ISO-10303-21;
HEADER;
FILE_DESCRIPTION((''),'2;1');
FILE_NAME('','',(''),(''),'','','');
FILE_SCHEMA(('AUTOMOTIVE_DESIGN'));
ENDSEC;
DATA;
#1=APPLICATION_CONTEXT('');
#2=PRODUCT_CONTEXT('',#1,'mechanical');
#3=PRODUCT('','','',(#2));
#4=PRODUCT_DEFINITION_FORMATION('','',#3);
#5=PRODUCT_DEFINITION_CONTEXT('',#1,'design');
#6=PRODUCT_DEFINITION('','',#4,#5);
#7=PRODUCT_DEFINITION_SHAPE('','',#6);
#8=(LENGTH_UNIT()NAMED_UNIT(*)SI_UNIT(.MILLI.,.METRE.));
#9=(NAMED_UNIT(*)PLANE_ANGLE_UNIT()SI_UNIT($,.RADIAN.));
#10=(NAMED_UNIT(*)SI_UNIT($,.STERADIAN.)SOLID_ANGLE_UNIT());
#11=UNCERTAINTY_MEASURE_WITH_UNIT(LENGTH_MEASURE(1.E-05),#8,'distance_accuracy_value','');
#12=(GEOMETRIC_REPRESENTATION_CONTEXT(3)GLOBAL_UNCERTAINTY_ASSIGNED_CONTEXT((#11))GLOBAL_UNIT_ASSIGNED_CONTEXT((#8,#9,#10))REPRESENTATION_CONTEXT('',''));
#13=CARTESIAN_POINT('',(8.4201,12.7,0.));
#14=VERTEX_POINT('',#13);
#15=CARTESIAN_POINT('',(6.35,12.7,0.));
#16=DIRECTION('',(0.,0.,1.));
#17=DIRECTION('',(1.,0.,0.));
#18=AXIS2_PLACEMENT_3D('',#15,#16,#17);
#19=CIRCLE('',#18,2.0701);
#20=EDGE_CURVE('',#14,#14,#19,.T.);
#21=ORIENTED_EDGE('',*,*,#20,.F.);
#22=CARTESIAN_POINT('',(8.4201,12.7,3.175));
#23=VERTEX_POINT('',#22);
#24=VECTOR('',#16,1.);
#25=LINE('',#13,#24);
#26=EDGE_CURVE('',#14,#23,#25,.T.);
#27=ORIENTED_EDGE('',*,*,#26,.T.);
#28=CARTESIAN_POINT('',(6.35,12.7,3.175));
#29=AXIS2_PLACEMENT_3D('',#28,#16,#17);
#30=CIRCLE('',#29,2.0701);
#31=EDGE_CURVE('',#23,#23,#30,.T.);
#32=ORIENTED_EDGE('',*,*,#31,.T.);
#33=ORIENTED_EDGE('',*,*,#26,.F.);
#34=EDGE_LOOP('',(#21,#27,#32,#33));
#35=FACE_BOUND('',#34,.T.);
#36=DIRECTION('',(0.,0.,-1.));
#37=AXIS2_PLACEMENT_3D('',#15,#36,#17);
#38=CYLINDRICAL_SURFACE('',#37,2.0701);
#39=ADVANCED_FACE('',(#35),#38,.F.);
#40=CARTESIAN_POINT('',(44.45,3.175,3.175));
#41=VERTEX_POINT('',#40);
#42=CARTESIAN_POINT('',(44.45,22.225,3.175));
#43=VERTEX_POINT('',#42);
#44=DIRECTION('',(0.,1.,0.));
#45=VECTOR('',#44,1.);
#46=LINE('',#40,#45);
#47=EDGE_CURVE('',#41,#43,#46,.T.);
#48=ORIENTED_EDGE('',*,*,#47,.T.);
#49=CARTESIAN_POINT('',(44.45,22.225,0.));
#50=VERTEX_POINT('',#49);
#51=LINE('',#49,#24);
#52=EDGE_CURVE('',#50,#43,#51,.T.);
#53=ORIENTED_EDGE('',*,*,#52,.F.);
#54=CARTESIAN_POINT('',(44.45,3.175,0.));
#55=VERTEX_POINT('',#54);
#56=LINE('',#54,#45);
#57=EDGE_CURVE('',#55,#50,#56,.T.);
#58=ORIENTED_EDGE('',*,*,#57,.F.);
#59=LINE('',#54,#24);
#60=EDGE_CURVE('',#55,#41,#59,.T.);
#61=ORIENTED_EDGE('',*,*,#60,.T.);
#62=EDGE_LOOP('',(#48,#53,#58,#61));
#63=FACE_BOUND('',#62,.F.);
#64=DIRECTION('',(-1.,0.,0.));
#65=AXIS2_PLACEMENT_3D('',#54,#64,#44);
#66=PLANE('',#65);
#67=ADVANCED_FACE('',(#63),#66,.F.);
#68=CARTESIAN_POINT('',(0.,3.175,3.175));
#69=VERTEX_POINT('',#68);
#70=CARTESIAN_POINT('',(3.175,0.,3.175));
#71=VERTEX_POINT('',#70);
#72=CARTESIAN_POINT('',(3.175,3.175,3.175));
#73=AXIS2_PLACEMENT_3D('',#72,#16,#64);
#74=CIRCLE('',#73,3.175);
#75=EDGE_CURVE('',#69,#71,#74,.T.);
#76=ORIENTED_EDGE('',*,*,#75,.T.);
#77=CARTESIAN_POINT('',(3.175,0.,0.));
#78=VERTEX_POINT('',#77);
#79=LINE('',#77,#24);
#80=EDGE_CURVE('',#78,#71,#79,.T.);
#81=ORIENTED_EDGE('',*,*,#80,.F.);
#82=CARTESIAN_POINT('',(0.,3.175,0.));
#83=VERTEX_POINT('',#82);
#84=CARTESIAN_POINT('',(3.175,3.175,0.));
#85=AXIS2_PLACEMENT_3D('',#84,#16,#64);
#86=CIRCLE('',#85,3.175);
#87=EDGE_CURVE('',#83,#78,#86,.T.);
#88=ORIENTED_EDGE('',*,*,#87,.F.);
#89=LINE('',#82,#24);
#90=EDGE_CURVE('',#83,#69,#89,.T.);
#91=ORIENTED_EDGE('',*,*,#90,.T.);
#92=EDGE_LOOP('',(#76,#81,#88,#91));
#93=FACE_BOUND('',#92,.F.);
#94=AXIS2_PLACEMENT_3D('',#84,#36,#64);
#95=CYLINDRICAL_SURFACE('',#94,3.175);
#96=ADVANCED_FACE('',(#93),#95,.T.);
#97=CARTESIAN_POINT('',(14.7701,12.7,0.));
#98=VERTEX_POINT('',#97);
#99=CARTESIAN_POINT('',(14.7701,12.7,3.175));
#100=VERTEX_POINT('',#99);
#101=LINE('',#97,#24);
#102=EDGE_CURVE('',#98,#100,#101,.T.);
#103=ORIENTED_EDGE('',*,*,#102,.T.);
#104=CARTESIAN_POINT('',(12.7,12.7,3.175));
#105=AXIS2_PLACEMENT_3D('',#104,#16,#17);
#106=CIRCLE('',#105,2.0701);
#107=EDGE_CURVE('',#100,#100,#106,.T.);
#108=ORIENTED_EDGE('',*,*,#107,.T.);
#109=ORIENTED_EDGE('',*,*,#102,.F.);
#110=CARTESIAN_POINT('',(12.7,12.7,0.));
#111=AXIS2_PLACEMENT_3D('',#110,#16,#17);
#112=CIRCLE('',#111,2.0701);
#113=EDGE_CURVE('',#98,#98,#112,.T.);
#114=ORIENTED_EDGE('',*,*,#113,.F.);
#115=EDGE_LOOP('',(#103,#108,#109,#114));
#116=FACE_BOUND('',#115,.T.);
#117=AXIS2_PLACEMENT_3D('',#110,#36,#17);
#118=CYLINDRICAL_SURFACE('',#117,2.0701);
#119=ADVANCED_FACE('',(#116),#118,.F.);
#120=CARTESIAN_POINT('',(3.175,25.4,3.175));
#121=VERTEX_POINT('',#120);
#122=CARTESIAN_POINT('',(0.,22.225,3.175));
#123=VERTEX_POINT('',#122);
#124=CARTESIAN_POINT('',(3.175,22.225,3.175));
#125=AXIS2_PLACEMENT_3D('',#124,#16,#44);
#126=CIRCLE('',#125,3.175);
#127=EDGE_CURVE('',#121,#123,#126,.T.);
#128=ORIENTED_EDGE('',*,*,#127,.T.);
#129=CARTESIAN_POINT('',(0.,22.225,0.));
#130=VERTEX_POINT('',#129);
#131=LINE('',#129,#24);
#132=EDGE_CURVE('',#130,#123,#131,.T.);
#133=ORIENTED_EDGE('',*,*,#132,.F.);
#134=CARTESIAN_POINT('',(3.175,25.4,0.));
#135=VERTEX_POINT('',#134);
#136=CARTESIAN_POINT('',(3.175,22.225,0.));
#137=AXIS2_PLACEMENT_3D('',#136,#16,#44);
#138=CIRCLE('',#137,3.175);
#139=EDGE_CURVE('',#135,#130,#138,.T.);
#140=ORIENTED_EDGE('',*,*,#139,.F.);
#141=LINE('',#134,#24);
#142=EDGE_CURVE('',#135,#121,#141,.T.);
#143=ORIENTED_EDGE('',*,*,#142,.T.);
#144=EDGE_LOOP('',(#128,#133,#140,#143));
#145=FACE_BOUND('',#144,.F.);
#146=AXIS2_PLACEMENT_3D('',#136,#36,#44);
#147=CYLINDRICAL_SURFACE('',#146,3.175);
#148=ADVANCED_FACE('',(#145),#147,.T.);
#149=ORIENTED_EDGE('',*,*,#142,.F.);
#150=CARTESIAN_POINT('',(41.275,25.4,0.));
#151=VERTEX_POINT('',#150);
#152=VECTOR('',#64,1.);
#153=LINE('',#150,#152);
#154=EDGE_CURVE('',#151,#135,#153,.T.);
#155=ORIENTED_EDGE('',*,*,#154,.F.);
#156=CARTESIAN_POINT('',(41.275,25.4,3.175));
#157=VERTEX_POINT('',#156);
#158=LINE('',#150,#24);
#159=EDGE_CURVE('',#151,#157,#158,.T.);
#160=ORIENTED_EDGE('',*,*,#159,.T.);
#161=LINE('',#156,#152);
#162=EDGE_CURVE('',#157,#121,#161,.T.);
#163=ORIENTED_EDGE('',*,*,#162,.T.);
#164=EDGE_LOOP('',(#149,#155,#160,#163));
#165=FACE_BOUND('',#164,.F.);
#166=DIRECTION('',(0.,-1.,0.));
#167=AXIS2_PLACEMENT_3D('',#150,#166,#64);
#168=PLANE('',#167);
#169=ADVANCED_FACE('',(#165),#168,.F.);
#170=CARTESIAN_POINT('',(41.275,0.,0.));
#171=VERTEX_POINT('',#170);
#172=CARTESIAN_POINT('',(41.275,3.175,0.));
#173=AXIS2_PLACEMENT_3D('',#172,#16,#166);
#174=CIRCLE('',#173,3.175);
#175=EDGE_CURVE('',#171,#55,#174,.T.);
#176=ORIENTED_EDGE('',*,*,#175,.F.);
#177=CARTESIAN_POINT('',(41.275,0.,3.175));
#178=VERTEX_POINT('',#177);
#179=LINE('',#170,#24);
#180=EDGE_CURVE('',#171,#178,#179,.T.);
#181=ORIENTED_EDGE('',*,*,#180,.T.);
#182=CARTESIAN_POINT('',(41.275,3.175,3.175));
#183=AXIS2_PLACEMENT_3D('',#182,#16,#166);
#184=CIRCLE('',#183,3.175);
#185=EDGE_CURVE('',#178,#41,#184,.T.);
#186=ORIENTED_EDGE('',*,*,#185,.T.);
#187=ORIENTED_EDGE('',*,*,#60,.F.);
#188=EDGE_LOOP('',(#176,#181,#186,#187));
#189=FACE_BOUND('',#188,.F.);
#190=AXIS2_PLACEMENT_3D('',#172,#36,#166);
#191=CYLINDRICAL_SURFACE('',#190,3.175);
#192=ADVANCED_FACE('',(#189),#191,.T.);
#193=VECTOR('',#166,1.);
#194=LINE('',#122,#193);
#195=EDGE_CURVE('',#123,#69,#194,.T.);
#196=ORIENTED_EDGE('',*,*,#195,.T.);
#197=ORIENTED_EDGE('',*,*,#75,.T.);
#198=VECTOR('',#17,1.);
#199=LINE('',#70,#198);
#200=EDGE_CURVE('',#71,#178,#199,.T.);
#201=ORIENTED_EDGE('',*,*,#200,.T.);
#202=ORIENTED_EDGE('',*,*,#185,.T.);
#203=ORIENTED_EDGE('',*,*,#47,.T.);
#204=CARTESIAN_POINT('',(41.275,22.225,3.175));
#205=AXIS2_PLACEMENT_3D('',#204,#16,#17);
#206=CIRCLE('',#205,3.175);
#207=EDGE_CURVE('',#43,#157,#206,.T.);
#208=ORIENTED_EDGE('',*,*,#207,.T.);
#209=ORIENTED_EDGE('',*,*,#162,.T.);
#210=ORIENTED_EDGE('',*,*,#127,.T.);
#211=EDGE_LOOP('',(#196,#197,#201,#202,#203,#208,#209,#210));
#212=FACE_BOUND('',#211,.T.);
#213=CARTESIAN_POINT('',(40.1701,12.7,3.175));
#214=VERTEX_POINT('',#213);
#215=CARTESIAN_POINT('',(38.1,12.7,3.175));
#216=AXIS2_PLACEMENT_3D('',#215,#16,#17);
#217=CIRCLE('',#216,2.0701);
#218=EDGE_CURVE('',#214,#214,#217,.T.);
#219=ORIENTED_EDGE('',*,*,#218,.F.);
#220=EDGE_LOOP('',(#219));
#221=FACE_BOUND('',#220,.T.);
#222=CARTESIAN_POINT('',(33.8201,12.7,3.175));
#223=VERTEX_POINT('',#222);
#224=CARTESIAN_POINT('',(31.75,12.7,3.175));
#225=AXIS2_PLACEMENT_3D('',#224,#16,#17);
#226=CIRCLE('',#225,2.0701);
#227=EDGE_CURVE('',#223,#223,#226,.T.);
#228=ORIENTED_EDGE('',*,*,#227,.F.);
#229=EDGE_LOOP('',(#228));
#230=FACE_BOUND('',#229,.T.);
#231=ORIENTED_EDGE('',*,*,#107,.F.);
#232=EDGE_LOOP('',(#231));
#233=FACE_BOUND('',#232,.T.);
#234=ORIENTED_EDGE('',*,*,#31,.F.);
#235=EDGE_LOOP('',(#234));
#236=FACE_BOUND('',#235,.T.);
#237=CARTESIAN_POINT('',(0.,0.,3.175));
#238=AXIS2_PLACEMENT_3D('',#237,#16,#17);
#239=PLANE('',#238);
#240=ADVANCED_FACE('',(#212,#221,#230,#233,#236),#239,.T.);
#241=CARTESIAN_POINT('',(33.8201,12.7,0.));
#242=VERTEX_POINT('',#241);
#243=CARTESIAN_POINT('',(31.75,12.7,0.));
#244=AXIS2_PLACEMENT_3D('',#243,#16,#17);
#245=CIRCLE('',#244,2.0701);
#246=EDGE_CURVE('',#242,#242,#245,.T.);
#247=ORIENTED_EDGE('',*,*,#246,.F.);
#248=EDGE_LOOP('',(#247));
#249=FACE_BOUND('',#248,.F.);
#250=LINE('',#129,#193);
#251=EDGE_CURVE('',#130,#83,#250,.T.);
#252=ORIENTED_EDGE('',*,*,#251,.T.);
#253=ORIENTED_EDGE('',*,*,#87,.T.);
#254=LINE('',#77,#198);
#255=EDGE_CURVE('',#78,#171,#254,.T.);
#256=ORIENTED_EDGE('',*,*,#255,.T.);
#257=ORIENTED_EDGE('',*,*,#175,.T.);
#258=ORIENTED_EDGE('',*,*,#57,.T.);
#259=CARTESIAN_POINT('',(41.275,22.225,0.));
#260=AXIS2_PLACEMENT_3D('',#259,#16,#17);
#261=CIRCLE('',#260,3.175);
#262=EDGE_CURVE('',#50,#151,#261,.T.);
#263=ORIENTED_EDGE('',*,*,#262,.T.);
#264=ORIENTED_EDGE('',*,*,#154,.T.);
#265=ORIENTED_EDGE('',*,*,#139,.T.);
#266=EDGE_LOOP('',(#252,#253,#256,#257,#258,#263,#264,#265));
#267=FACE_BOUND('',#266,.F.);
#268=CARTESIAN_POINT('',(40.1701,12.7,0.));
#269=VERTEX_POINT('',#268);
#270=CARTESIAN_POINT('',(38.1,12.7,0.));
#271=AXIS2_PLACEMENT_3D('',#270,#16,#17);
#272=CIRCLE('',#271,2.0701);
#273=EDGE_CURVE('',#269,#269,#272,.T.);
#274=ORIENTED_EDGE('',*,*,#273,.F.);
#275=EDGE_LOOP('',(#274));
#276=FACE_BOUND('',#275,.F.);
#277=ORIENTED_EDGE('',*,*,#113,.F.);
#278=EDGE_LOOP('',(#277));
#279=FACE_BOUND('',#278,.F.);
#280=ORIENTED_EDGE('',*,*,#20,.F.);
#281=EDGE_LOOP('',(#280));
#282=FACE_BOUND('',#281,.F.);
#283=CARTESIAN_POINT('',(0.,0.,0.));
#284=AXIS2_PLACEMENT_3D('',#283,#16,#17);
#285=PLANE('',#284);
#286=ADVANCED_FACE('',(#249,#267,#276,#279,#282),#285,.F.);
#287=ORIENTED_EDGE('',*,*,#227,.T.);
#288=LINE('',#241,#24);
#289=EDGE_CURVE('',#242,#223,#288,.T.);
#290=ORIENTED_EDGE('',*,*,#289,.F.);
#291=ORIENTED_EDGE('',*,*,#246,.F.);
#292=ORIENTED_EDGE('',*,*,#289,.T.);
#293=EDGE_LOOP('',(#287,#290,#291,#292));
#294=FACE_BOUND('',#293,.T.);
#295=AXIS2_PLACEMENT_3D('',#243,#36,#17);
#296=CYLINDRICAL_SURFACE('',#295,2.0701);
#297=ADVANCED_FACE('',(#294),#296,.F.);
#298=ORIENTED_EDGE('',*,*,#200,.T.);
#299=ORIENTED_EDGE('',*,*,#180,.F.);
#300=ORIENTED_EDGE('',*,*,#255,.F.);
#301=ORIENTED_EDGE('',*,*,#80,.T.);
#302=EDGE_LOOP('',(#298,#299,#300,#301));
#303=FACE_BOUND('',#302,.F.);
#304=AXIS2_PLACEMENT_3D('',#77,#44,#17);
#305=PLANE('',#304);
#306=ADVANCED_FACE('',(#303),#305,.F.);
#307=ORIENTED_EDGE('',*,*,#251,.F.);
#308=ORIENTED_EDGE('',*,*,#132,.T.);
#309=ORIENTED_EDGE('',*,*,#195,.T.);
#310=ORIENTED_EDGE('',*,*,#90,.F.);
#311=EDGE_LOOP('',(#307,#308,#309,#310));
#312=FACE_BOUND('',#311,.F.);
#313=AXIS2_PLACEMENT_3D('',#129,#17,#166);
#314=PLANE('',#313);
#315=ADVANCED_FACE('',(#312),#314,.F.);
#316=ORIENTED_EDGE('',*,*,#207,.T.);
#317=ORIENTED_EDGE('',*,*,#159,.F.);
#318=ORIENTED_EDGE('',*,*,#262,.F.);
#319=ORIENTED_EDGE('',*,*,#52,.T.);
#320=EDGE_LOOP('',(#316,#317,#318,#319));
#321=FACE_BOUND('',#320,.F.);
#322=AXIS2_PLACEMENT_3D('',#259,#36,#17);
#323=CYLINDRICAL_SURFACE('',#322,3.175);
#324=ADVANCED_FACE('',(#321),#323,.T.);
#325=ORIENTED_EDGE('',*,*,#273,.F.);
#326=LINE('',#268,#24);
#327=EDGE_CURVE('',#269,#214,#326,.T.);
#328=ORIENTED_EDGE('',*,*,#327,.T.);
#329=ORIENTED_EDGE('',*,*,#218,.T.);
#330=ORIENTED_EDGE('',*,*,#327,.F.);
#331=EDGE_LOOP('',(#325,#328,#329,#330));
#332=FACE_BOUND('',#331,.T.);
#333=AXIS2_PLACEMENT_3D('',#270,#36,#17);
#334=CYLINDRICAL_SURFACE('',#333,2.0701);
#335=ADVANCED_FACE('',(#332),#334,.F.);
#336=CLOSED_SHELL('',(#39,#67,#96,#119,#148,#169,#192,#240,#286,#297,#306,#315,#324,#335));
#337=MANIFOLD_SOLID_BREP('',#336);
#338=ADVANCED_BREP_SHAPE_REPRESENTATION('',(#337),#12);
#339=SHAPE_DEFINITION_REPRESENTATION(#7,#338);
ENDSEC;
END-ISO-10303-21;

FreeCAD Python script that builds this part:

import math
import FreeCAD as App
import Part
import Sketcher
from FreeCAD import Vector
Q = App.Units.Quantity

doc = App.newDocument("Part")
body = doc.addObject("PartDesign::Body", "Body")

# Sketch on XY plane
sketch1 = doc.addObject("Sketcher::SketchObject", "Sketch")
body.addObject(sketch1)
sketch1.AttachmentSupport = (doc.XY_Plane, [""])
sketch1.MapMode = "FlatFace"
sketch1.addGeometry(Part.ArcOfCircle(Part.Circle(Vector(3.2, 3.2, 0), Vector(0, 0, 1), 3.2), math.radians(180), math.radians(270)), False)
sketch1.addGeometry(Part.LineSegment(Vector(3.2, 0, 0), Vector(41.3, 0, 0)), False)
sketch1.addGeometry(Part.ArcOfCircle(Part.Circle(Vector(41.3, 3.2, 0), Vector(0, 0, 1), 3.2), math.radians(-90), math.radians(0)), False)
sketch1.addGeometry(Part.LineSegment(Vector(44.5, 3.2, 0), Vector(44.5, 22.2, 0)), False)
sketch1.addGeometry(Part.ArcOfCircle(Part.Circle(Vector(41.3, 22.2, 0), Vector(0, 0, 1), 3.2), math.radians(0), math.radians(90)), False)
sketch1.addGeometry(Part.LineSegment(Vector(41.3, 25.4, 0), Vector(3.2, 25.4, 0)), False)
sketch1.addGeometry(Part.ArcOfCircle(Part.Circle(Vector(3.2, 22.2, 0), Vector(0, 0, 1), 3.2), math.radians(90), math.radians(180)), False)
sketch1.addGeometry(Part.LineSegment(Vector(0, 22.2, 0), Vector(0, 3.2, 0)), False)
sketch1.addGeometry(Part.Circle(Vector(6.3, 12.7, 0), Vector(0, 0, 1), 2.1), False)
sketch1.addGeometry(Part.Circle(Vector(12.7, 12.7, 0), Vector(0, 0, 1), 2.1), False)
sketch1.addGeometry(Part.Circle(Vector(31.8, 12.7, 0), Vector(0, 0, 1), 2.1), False)
sketch1.addGeometry(Part.Circle(Vector(38.1, 12.7, 0), Vector(0, 0, 1), 2.1), False)
sketch1.addConstraint(Sketcher.Constraint("Tangent", 0, 2, 1, 1))
sketch1.addConstraint(Sketcher.Constraint("Tangent", 1, 2, 2, 1))
sketch1.addConstraint(Sketcher.Constraint("Tangent", 2, 2, 3, 1))
sketch1.addConstraint(Sketcher.Constraint("Tangent", 3, 2, 4, 1))
sketch1.addConstraint(Sketcher.Constraint("Tangent", 4, 2, 5, 1))
sketch1.addConstraint(Sketcher.Constraint("Tangent", 5, 2, 6, 1))
sketch1.addConstraint(Sketcher.Constraint("Tangent", 6, 2, 7, 1))
sketch1.addConstraint(Sketcher.Constraint("Tangent", 7, 2, 0, 1))
sketch1.addConstraint(Sketcher.Constraint("Horizontal", 1))
sketch1.addConstraint(Sketcher.Constraint("Vertical", 3))
sketch1.addConstraint(Sketcher.Constraint("Horizontal", 5))
sketch1.addConstraint(Sketcher.Constraint("Vertical", 7))
sketch1.addConstraint(Sketcher.Constraint("Equal", 0, 2))
sketch1.addConstraint(Sketcher.Constraint("Equal", 2, 4))
sketch1.addConstraint(Sketcher.Constraint("Equal", 4, 6))
sketch1.addConstraint(Sketcher.Constraint("Equal", 8, 9))
sketch1.addConstraint(Sketcher.Constraint("Equal", 9, 10))
sketch1.addConstraint(Sketcher.Constraint("Equal", 10, 11))
sketch1.addConstraint(Sketcher.Constraint("PointOnObject", 0, 2, -1))
sketch1.addConstraint(Sketcher.Constraint("PointOnObject", 6, 2, -2))
sketch1.addConstraint(Sketcher.Constraint("Horizontal", 8, 3, 9, 3))
sketch1.addConstraint(Sketcher.Constraint("Horizontal", 9, 3, 10, 3))
sketch1.addConstraint(Sketcher.Constraint("Horizontal", 10, 3, 11, 3))
sketch1.addConstraint(Sketcher.Constraint("Diameter", 8, Q("0.163 in")))
sketch1.addConstraint(Sketcher.Constraint("DistanceY", -1, 1, 4, 2, Q("1 in")))
sketch1.addConstraint(Sketcher.Constraint("Radius", 0, Q("0.125 in")))
sketch1.addConstraint(Sketcher.Constraint("DistanceX", 8, 3, 10, 3, Q("1 in")))
sketch1.addConstraint(Sketcher.Constraint("DistanceX", 9, 3, 11, 3, Q("1 in")))
sketch1.addConstraint(Sketcher.Constraint("DistanceX", -1, 1, 8, 3, Q("0.25 in")))
sketch1.addConstraint(Sketcher.Constraint("DistanceX", -1, 1, 2, 2, Q("1.75 in")))
sketch1.addConstraint(Sketcher.Constraint("DistanceX", 8, 3, 9, 3, Q("0.25 in")))
sketch1.addConstraint(Sketcher.Constraint("DistanceY", -1, 1, 8, 3, Q("0.5 in")))
pad1 = doc.addObject("PartDesign::Pad", "Pad")
body.addObject(pad1)
pad1.Profile = sketch1
pad1.Length = Q("0.125 in")

doc.recompute()
